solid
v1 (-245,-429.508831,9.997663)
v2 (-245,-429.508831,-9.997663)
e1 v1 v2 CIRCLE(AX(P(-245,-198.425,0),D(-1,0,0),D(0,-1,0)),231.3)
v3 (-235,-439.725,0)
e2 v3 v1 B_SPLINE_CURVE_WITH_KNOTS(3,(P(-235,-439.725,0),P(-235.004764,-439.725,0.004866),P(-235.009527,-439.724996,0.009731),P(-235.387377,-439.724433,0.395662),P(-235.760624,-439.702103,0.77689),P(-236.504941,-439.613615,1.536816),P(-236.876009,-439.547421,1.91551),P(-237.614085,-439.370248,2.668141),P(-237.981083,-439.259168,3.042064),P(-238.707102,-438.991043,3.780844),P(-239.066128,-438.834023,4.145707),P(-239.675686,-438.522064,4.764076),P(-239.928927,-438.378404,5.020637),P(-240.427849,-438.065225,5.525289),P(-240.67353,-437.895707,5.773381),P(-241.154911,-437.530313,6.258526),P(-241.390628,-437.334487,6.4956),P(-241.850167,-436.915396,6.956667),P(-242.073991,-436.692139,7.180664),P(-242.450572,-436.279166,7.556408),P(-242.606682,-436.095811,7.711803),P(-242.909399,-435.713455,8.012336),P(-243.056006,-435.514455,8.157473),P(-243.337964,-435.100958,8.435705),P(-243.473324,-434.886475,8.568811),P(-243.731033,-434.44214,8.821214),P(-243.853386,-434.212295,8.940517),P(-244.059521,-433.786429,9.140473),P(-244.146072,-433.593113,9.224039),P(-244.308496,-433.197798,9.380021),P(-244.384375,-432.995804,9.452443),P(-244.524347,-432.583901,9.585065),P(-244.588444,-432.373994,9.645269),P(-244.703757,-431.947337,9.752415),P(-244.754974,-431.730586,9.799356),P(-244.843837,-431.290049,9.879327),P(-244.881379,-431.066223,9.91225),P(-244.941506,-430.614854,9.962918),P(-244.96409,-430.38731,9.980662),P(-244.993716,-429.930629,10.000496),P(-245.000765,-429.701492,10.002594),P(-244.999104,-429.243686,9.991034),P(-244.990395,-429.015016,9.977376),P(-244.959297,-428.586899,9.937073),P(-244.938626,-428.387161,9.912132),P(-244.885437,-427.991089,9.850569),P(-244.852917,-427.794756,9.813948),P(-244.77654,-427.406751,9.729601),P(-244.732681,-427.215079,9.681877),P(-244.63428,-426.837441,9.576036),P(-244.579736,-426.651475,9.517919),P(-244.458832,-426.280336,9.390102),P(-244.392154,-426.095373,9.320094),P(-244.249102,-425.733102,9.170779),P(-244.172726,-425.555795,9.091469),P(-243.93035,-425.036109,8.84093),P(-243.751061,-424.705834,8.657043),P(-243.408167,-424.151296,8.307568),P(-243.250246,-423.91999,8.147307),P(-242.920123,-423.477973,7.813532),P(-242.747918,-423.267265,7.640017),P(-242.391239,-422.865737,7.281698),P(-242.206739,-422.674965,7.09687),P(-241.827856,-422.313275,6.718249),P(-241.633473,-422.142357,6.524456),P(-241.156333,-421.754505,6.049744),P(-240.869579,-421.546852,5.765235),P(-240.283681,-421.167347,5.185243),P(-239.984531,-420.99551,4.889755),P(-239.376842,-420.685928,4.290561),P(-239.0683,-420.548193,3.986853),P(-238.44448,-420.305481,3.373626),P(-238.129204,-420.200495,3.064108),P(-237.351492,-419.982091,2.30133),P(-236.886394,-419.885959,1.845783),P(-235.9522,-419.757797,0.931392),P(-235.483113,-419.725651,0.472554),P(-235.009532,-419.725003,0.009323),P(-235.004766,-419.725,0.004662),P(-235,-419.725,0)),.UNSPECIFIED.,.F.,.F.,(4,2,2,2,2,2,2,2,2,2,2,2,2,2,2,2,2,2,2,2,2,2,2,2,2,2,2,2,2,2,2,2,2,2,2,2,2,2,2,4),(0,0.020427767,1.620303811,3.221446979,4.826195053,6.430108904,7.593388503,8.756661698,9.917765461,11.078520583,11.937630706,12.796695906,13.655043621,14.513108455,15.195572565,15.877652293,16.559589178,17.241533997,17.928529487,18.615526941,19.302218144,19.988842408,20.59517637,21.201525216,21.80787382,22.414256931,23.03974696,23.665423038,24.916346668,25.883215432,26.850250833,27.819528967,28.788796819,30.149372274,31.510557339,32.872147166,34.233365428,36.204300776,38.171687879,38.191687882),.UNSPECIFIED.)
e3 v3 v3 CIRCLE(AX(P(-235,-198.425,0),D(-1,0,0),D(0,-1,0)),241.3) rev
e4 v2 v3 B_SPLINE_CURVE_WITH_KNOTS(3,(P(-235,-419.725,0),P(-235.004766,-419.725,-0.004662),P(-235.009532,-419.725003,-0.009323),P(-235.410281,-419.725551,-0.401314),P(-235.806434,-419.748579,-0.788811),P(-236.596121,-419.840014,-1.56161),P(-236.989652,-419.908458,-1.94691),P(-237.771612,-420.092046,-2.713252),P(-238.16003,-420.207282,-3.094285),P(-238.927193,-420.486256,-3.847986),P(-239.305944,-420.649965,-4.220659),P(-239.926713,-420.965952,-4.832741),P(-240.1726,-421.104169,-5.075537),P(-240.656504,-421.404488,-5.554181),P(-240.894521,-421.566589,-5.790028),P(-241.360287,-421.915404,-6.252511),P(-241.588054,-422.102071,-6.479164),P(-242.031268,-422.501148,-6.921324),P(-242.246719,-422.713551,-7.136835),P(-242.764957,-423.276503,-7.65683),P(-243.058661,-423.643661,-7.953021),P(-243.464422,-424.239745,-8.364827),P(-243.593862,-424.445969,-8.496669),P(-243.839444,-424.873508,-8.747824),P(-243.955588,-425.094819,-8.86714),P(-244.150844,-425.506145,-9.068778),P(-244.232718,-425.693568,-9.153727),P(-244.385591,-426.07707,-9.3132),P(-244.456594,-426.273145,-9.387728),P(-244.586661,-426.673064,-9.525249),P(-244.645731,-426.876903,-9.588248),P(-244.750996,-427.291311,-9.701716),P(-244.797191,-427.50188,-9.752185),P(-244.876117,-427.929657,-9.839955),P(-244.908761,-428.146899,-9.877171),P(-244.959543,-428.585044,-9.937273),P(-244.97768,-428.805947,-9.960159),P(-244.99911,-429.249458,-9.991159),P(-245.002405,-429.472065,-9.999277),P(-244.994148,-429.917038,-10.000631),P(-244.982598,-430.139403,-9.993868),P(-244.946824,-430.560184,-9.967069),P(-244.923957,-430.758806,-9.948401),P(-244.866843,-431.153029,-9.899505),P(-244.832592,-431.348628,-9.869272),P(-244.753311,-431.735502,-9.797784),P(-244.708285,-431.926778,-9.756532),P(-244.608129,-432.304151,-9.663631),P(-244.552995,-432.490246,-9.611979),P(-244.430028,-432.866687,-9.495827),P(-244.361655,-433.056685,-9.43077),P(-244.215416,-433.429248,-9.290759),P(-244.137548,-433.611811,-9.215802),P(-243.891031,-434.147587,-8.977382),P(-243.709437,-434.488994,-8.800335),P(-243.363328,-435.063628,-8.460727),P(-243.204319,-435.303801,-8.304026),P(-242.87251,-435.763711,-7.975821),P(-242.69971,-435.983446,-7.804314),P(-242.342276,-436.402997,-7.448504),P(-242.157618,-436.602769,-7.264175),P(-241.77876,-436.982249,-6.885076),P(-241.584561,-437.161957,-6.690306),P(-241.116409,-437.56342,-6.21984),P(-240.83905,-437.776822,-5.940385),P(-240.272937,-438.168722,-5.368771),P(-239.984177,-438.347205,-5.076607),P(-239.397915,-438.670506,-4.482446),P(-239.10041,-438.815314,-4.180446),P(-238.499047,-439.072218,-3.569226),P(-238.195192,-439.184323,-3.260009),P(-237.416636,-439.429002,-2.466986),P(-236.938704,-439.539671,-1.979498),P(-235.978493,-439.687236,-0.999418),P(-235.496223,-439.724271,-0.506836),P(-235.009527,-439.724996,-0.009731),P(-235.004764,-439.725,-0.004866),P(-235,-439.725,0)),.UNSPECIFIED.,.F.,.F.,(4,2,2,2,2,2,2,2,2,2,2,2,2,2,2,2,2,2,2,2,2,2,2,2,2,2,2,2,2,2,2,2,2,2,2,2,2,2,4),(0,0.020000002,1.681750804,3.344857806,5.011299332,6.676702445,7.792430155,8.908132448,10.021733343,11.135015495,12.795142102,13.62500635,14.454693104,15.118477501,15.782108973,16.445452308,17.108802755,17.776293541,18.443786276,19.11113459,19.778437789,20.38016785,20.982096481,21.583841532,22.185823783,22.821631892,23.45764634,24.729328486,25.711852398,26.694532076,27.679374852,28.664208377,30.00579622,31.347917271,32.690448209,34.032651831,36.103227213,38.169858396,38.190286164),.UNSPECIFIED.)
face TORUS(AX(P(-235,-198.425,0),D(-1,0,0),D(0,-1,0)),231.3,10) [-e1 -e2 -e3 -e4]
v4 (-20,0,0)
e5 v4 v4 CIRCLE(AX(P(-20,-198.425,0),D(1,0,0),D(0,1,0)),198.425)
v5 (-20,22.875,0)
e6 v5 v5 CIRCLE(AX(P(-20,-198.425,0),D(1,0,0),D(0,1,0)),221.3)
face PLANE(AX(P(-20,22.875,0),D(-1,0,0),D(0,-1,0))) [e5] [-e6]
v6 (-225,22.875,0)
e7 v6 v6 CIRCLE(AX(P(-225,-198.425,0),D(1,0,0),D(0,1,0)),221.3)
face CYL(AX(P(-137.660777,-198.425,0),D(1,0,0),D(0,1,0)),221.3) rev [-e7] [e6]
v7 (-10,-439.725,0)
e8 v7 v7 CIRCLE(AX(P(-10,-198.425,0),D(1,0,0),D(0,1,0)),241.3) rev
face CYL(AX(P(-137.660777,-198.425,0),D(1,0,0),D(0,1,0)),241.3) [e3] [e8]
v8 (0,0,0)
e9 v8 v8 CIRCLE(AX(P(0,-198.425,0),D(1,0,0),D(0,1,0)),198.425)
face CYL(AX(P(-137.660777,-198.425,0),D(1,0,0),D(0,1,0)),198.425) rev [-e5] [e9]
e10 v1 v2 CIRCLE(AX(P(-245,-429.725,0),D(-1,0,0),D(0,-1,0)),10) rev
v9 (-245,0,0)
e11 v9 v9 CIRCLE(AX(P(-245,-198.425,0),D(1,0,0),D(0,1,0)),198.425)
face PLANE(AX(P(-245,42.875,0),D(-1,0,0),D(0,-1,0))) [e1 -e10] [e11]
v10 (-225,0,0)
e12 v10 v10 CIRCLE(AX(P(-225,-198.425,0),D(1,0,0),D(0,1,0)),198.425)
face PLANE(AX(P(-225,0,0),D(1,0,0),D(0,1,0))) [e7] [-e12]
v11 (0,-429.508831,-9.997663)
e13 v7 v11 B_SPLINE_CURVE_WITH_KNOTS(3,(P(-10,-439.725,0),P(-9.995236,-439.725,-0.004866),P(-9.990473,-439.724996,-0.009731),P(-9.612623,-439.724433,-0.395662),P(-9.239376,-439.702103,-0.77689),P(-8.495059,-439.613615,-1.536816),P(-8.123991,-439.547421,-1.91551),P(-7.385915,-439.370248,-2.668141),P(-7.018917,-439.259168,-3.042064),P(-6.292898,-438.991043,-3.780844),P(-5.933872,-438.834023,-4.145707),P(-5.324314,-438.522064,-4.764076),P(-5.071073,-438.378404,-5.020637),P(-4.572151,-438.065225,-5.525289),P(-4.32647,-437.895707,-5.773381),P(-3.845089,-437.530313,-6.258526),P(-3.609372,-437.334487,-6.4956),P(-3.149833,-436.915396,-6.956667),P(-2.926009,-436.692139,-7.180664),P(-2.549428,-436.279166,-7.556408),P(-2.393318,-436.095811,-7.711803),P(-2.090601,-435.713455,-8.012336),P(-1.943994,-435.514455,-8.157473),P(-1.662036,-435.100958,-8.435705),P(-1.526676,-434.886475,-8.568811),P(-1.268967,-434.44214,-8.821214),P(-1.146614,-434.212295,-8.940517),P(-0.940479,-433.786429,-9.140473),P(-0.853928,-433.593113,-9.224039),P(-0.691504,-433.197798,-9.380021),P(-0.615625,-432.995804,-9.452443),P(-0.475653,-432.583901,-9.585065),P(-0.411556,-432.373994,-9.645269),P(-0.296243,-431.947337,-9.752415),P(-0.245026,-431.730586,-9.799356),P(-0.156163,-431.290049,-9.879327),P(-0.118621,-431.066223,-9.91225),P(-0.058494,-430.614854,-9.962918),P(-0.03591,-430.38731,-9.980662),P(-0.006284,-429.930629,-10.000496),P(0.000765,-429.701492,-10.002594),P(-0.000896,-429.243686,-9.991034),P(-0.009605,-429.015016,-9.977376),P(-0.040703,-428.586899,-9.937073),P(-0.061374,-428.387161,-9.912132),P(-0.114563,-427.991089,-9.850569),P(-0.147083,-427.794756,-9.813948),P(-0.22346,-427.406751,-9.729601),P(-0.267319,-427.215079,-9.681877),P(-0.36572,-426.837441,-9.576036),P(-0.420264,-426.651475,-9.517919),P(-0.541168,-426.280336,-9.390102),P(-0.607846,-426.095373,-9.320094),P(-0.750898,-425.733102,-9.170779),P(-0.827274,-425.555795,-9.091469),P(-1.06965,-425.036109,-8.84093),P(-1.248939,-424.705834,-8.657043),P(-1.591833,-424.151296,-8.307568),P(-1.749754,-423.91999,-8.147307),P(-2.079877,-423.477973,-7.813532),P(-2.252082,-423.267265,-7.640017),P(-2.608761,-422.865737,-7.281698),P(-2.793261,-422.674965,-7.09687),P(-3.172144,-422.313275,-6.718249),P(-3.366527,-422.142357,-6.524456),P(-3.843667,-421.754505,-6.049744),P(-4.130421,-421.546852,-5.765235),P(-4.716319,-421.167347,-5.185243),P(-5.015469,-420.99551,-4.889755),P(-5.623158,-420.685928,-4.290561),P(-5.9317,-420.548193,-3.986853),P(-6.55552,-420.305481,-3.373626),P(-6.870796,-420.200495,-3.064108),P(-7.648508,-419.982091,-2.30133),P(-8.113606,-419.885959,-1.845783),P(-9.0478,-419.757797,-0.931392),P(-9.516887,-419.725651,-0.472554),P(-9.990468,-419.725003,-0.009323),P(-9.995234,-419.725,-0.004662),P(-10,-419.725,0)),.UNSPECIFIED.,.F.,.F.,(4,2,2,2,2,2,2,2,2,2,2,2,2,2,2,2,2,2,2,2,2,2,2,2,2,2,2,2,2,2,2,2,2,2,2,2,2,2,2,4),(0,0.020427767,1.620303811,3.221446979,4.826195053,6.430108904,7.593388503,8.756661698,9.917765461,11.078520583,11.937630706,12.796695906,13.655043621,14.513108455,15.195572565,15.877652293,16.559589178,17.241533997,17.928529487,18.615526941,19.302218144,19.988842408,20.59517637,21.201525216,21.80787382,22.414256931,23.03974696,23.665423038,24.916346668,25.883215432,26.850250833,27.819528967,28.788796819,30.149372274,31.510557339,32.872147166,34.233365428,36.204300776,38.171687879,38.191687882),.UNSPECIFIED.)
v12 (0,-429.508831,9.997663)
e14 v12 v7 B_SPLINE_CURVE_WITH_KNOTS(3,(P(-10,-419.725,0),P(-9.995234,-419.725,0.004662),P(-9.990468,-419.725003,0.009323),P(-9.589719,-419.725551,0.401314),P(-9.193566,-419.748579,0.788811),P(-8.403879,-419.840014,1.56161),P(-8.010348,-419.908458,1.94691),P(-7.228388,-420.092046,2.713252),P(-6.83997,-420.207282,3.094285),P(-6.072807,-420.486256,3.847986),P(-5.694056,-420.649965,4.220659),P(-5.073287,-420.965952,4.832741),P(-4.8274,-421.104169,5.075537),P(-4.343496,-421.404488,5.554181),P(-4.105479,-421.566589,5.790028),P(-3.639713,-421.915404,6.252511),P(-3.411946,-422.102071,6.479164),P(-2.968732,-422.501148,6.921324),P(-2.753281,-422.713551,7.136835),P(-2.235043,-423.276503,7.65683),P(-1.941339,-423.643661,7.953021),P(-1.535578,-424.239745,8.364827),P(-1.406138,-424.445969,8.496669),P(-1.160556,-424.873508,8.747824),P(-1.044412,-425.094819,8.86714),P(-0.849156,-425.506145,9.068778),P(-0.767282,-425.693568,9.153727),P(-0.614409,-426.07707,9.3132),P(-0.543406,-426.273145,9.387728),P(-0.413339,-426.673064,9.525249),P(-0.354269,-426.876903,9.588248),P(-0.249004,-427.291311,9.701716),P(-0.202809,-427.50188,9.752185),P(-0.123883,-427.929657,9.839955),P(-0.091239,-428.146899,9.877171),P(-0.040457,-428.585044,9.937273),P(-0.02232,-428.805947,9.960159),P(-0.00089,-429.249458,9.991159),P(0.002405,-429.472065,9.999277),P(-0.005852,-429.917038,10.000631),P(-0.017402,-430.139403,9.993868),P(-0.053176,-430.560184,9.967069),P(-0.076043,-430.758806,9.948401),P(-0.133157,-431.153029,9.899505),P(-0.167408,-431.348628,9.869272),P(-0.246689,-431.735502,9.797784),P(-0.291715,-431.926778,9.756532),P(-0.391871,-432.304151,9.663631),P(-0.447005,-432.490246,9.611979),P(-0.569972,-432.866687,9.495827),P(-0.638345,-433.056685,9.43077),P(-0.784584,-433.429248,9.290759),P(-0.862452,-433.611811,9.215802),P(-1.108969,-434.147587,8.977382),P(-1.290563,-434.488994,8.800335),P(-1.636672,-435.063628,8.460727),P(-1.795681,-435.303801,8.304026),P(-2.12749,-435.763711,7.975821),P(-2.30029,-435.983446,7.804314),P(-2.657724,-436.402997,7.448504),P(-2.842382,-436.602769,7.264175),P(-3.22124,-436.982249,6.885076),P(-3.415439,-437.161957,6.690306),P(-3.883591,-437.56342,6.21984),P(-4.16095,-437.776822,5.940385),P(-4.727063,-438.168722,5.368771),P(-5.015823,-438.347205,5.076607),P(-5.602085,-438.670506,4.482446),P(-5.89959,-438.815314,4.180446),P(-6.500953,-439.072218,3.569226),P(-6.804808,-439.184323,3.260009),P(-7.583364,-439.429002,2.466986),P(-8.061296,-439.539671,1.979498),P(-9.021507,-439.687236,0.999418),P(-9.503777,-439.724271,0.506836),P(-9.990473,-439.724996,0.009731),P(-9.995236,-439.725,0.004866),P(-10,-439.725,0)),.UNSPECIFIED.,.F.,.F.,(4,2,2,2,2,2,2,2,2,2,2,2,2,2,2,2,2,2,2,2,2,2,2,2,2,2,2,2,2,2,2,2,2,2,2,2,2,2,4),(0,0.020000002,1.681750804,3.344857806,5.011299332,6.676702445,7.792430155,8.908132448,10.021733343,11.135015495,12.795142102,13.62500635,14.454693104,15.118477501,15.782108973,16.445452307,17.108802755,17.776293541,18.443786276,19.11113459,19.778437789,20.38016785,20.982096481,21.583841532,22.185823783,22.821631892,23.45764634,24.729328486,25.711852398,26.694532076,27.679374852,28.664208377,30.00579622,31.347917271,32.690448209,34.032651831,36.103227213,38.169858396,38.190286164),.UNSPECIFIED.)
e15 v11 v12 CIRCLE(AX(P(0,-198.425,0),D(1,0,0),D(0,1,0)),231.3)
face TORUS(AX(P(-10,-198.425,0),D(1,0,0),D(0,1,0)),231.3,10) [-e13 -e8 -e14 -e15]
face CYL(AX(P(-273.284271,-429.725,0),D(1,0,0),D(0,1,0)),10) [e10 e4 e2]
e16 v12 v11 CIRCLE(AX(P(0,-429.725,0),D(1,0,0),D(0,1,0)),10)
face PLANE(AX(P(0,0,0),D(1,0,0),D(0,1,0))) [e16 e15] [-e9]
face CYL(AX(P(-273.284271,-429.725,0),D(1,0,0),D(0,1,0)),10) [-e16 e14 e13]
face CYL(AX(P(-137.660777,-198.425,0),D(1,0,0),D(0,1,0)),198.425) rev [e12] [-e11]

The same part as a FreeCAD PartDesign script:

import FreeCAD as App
import Part
import Sketcher
from FreeCAD import Vector
Q = App.Units.Quantity


def edges_at(feature, points):
    """Names of the edges that pass closest to the given points."""
    edges = feature.Shape.Edges
    near = lambda p: min(range(len(edges)), key=lambda i: edges[i].distToShape(Part.Vertex(*p))[0])
    return sorted({f"Edge{near(p) + 1}" for p in points})

doc = App.newDocument("Part")
params = doc.addObject("Spreadsheet::Sheet", "Params")
for row, (alias, value) in enumerate([
    ("sketch1_width", "245 mm"),
    ("sketch1_width2", "20 mm"),
    ("revolution_angle", "360 deg"),
    ("fillet_radius", "10 mm"),
    ("sketch2_diameter", "20 mm"),
    ("pad1_length", "245 mm"),
], start=1):
    params.set(f"A{row}", alias)
    params.set(f"B{row}", "=" + value)
    params.setAlias(f"B{row}", alias)

body = doc.addObject("PartDesign::Body", "Body")

# Sketch on XY plane
sketch1 = body.newObject("Sketcher::SketchObject", "Sketch")
sketch1.AttachmentSupport = (doc.getObject("XY_Plane"), [""])
sketch1.MapMode = "FlatFace"
sketch1.addGeometry(Part.LineSegment(Vector(0, 0, 0), Vector(0, 43, 0)), False)
sketch1.addGeometry(Part.LineSegment(Vector(0, 43, 0), Vector(-245, 43, 0)), False)
sketch1.addGeometry(Part.LineSegment(Vector(-245, 43, 0), Vector(-245, 0, 0)), False)
sketch1.addGeometry(Part.LineSegment(Vector(-245, 0, 0), Vector(-225, 0, 0)), False)
sketch1.addGeometry(Part.LineSegment(Vector(-225, 0, 0), Vector(-225, 23, 0)), False)
sketch1.addGeometry(Part.LineSegment(Vector(-225, 23, 0), Vector(-20, 23, 0)), False)
sketch1.addGeometry(Part.LineSegment(Vector(-20, 23, 0), Vector(-20, 0, 0)), False)
sketch1.addGeometry(Part.LineSegment(Vector(-20, 0, 0), Vector(0, 0, 0)), False)
sketch1.addGeometry(Part.LineSegment(Vector(0, -198, 0), Vector(-245, -198, 0)), True)  # axis
sketch1.addConstraint(Sketcher.Constraint("Coincident", 0, 2, 1, 1))
sketch1.addConstraint(Sketcher.Constraint("Coincident", 1, 2, 2, 1))
sketch1.addConstraint(Sketcher.Constraint("Coincident", 2, 2, 3, 1))
sketch1.addConstraint(Sketcher.Constraint("Coincident", 3, 2, 4, 1))
sketch1.addConstraint(Sketcher.Constraint("Coincident", 4, 2, 5, 1))
sketch1.addConstraint(Sketcher.Constraint("Coincident", 5, 2, 6, 1))
sketch1.addConstraint(Sketcher.Constraint("Coincident", 6, 2, 7, 1))
sketch1.addConstraint(Sketcher.Constraint("Coincident", 7, 2, 0, 1))
sketch1.addConstraint(Sketcher.Constraint("Vertical", 0))
sketch1.addConstraint(Sketcher.Constraint("Horizontal", 1))
sketch1.addConstraint(Sketcher.Constraint("Vertical", 2))
sketch1.addConstraint(Sketcher.Constraint("Horizontal", 3))
sketch1.addConstraint(Sketcher.Constraint("Vertical", 4))
sketch1.addConstraint(Sketcher.Constraint("Horizontal", 5))
sketch1.addConstraint(Sketcher.Constraint("Vertical", 6))
sketch1.addConstraint(Sketcher.Constraint("Horizontal", 7))
sketch1.addConstraint(Sketcher.Constraint("Horizontal", 8))
sketch1.addConstraint(Sketcher.Constraint("Coincident", 7, 2, -1, 1))
sketch1.addConstraint(Sketcher.Constraint("PointOnObject", 2, 2, -1))
sketch1.addConstraint(Sketcher.Constraint("PointOnObject", 8, 1, -2))
sketch1.addConstraint(Sketcher.Constraint("Vertical", 2, 2, 8, 2))
sketch1.addConstraint(Sketcher.Constraint("Equal", 3, 7))
sketch1.addConstraint(Sketcher.Constraint("DistanceX", 1, 2, 1, 1, Q("245 mm")))
sketch1.addConstraint(Sketcher.Constraint("DistanceX", 3, 1, 3, 2, Q("20 mm")))
sketch1.addConstraint(Sketcher.Constraint("DistanceY", 4, 2, 1, 2, Q("20 mm")))
sketch1.addConstraint(Sketcher.Constraint("DistanceY", 8, 1, 5, 2, Q("221.3 mm")))
sketch1.addConstraint(Sketcher.Constraint("DistanceY", 0, 1, 0, 2, Q("42.875 mm")))
sketch1.setExpression("Constraints[22]", "Params.sketch1_width")
sketch1.setExpression("Constraints[23]", "Params.sketch1_width2")
revolution = body.newObject("PartDesign::Revolution", "Revolution")
revolution.Profile = sketch1
revolution.ReferenceAxis = (sketch1, ["Axis0"])
revolution.setExpression("Angle", "Params.revolution_angle")
doc.recompute()

fillet = body.newObject("PartDesign::Fillet", "Fillet")
fillet.Base = (revolution, edges_at(revolution, [(-245, -439.725, 0), (0, -439.725, 0)]))
fillet.setExpression("Radius", "Params.fillet_radius")

# Sketch on YZ plane
sketch2 = body.newObject("Sketcher::SketchObject", "Sketch001")
sketch2.AttachmentSupport = (doc.getObject("YZ_Plane"), [""])
sketch2.MapMode = "FlatFace"
sketch2.addGeometry(Part.Circle(Vector(-430, 0, 0), Vector(0, 0, 1), 10), False)
sketch2.addConstraint(Sketcher.Constraint("PointOnObject", 0, 3, -1))
sketch2.addConstraint(Sketcher.Constraint("Diameter", 0, Q("20 mm")))
sketch2.addConstraint(Sketcher.Constraint("DistanceX", 0, 3, -1, 1, Q("429.725 mm")))
sketch2.setExpression("Constraints[1]", "Params.sketch2_diameter")
pad1 = body.newObject("PartDesign::Pad", "Pad")
pad1.Profile = sketch2
pad1.setExpression("Length", "Params.pad1_length")
pad1.Reversed = True

doc.recompute()
